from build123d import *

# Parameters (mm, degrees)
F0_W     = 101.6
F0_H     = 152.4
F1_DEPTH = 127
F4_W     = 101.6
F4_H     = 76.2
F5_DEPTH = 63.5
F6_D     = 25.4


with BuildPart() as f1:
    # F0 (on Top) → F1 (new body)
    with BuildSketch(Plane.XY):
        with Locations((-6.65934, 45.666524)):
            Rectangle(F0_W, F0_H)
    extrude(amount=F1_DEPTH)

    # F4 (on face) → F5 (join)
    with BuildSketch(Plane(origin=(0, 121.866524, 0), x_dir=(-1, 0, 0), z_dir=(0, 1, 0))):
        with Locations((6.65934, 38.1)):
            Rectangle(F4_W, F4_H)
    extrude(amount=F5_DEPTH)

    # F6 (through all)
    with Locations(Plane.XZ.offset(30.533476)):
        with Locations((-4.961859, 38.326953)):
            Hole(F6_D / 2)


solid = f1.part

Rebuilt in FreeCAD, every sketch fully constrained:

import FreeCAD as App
import Part
import Sketcher

V = App.Vector
Q = App.Units.Quantity


def add_polygon(sketch, points):
    """Adds a closed chain of lines whose ends are joined by coincident constraints."""
    first, n = sketch.GeometryCount, len(points)
    for a, b in zip(points, points[1:] + points[:1]):
        sketch.addGeometry(Part.LineSegment(App.Vector(*a, 0), App.Vector(*b, 0)), False)
    for i in range(n):
        sketch.addConstraint(Sketcher.Constraint("Coincident", first + i, 2, first + (i + 1) % n, 1))

doc = App.newDocument("Part")
body = doc.addObject("PartDesign::Body", "Body")

sketch1 = body.newObject("Sketcher::SketchObject", "Sketch")
sketch1.AttachmentSupport = (doc.getObject("XY_Plane"), [""])
sketch1.MapMode = "FlatFace"
add_polygon(sketch1, [(-57, 122), (-57, -31), (44, -31), (44, 122)])
sketch1.addConstraint([
    Sketcher.Constraint("Vertical", 0),
    Sketcher.Constraint("Horizontal", 1),
    Sketcher.Constraint("Vertical", 2),
    Sketcher.Constraint("Horizontal", 3),
    Sketcher.Constraint("DistanceX", 1, 1, 1, 2, Q("4 in")),
    Sketcher.Constraint("DistanceY", 0, 2, 0, 1, Q("6 in")),
    Sketcher.Constraint("DistanceX", 0, 2, -1, 1, 57.45934),
    Sketcher.Constraint("DistanceY", 0, 2, -1, 1, 30.533476),
])
pad1 = body.newObject("PartDesign::Pad", "Pad")
pad1.Profile = sketch1
pad1.Length = Q("5 in")

sketch2 = body.newObject("Sketcher::SketchObject", "Sketch001")
sketch2.AttachmentSupport = (doc.getObject("XZ_Plane"), [""])
sketch2.MapMode = "FlatFace"
sketch2.AttachmentOffset = App.Placement(V(0, 0, -121.866524), App.Rotation())
add_polygon(sketch2, [(44, 76), (44, 0), (-57, 0), (-57, 76)])
sketch2.addConstraint([
    Sketcher.Constraint("Vertical", 0),
    Sketcher.Constraint("Horizontal", 1),
    Sketcher.Constraint("Vertical", 2),
    Sketcher.Constraint("Horizontal", 3),
    Sketcher.Constraint("PointOnObject", 0, 2, -1),
    Sketcher.Constraint("DistanceX", 1, 2, 1, 1, Q("4 in")),
    Sketcher.Constraint("DistanceY", 0, 2, 0, 1, Q("3 in")),
    Sketcher.Constraint("DistanceX", -1, 1, 0, 2, 44.14066),
])
pad2 = body.newObject("PartDesign::Pad", "Pad001")
pad2.Profile = sketch2
pad2.Length = Q("2.5 in")
pad2.Reversed = True

sketch3 = body.newObject("Sketcher::SketchObject", "Sketch002")
sketch3.AttachmentSupport = (doc.getObject("XZ_Plane"), [""])
sketch3.MapMode = "FlatFace"
sketch3.AttachmentOffset = App.Placement(V(0, 0, 30.533476), App.Rotation())
sketch3.addGeometry(Part.Circle(V(-5, 38, 0), V(0, 0, 1), 13), False)
sketch3.addConstraint([
    Sketcher.Constraint("Diameter", 0, Q("1 in")),
    Sketcher.Constraint("DistanceX", 0, 3, -1, 1, 4.961859),
    Sketcher.Constraint("DistanceY", -1, 1, 0, 3, 38.326953),
])
doc.recompute()
hole = body.newObject("PartDesign::Hole", "Hole")
hole.Profile = sketch3
hole.ThreadType = "None"
hole.Diameter = Q("1 in")
hole.DepthType = "ThroughAll"

doc.recompute()
